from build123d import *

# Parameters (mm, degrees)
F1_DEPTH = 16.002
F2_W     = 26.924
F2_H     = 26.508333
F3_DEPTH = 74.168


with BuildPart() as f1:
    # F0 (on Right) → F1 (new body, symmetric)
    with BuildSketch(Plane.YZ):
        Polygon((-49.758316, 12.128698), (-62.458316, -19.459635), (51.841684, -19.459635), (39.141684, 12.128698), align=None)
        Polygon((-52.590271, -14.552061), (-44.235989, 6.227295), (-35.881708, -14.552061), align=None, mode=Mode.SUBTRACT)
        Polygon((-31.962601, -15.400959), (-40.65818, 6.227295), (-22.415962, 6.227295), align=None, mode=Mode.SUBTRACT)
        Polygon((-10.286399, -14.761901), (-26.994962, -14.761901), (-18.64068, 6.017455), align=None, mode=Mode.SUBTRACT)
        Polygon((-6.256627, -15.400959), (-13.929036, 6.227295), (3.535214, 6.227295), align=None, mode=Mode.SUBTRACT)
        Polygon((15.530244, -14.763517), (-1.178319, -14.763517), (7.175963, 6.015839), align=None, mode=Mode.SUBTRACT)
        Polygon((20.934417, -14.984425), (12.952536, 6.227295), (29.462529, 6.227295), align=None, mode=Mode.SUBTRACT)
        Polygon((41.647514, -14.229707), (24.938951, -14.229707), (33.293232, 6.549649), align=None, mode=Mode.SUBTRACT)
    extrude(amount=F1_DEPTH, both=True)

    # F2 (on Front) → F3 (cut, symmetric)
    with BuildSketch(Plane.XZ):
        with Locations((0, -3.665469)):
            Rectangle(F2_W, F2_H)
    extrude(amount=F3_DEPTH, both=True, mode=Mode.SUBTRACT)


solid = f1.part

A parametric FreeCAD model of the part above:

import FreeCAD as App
import Part
import Sketcher
from FreeCAD import Vector
Q = App.Units.Quantity

doc = App.newDocument("Part")
params = doc.addObject("Spreadsheet::Sheet", "Params")
for row, (alias, value) in enumerate([
    ("sketch1_width", "4.5 in"),
    ("sketch1_width2", "3.5 in"),
    ("pad1_length", "1.26 in"),
    ("sketch2_width", "1.06 in"),
    ("pocket1_length", "5.84 in"),
], start=1):
    params.set(f"A{row}", alias)
    params.set(f"B{row}", "=" + value)
    params.setAlias(f"B{row}", alias)

body = doc.addObject("PartDesign::Body", "Body")

# Sketch on YZ plane
sketch1 = doc.addObject("Sketcher::SketchObject", "Sketch")
body.addObject(sketch1)
sketch1.AttachmentSupport = (doc.YZ_Plane, [""])
sketch1.MapMode = "FlatFace"
sketch1.addGeometry([
    Part.LineSegment(Vector(-49.758316, 12.128698, 0), Vector(-62.458316, -19.459635, 0)),  # 0
    Part.LineSegment(Vector(-62.458316, -19.459635, 0), Vector(51.841684, -19.459635, 0)),  # 1
    Part.LineSegment(Vector(51.841684, -19.459635, 0), Vector(39.141684, 12.128698, 0)),  # 2
    Part.LineSegment(Vector(39.141684, 12.128698, 0), Vector(-49.758316, 12.128698, 0)),  # 3
    Part.LineSegment(Vector(-22.415962, 6.227295, 0), Vector(-31.962601, -15.400959, 0)),  # 4
    Part.LineSegment(Vector(-31.962601, -15.400959, 0), Vector(-40.65818, 6.227295, 0)),  # 5
    Part.LineSegment(Vector(-40.65818, 6.227295, 0), Vector(-22.415962, 6.227295, 0)),  # 6
    Part.LineSegment(Vector(3.535214, 6.227295, 0), Vector(-6.256627, -15.400959, 0)),  # 7
    Part.LineSegment(Vector(-6.256627, -15.400959, 0), Vector(-13.929036, 6.227295, 0)),  # 8
    Part.LineSegment(Vector(-13.929036, 6.227295, 0), Vector(3.535214, 6.227295, 0)),  # 9
    Part.LineSegment(Vector(-35.881708, -14.552061, 0), Vector(-52.590271, -14.552061, 0)),  # 10
    Part.LineSegment(Vector(-52.590271, -14.552061, 0), Vector(-44.235989, 6.227295, 0)),  # 11
    Part.LineSegment(Vector(-44.235989, 6.227295, 0), Vector(-35.881708, -14.552061, 0)),  # 12
    Part.LineSegment(Vector(-18.64068, 6.017455, 0), Vector(-10.286399, -14.761901, 0)),  # 13
    Part.LineSegment(Vector(-10.286399, -14.761901, 0), Vector(-26.994962, -14.761901, 0)),  # 14
    Part.LineSegment(Vector(-26.994962, -14.761901, 0), Vector(-18.64068, 6.017455, 0)),  # 15
    Part.LineSegment(Vector(7.175963, 6.015839, 0), Vector(15.530244, -14.763517, 0)),  # 16
    Part.LineSegment(Vector(15.530244, -14.763517, 0), Vector(-1.178319, -14.763517, 0)),  # 17
    Part.LineSegment(Vector(-1.178319, -14.763517, 0), Vector(7.175963, 6.015839, 0)),  # 18
    Part.LineSegment(Vector(29.462529, 6.227295, 0), Vector(20.934417, -14.984425, 0)),  # 19
    Part.LineSegment(Vector(20.934417, -14.984425, 0), Vector(12.952536, 6.227295, 0)),  # 20
    Part.LineSegment(Vector(12.952536, 6.227295, 0), Vector(29.462529, 6.227295, 0)),  # 21
    Part.LineSegment(Vector(33.293232, 6.549649, 0), Vector(41.647514, -14.229707, 0)),  # 22
    Part.LineSegment(Vector(41.647514, -14.229707, 0), Vector(24.938951, -14.229707, 0)),  # 23
    Part.LineSegment(Vector(24.938951, -14.229707, 0), Vector(33.293232, 6.549649, 0)),  # 24
], False)
sketch1.addConstraint([
    Sketcher.Constraint("Coincident", 0, 2, 1, 1),
    Sketcher.Constraint("Coincident", 1, 2, 2, 1),
    Sketcher.Constraint("Coincident", 2, 2, 3, 1),
    Sketcher.Constraint("Coincident", 3, 2, 0, 1),
    Sketcher.Constraint("Coincident", 4, 2, 5, 1),
    Sketcher.Constraint("Coincident", 5, 2, 6, 1),
    Sketcher.Constraint("Coincident", 6, 2, 4, 1),
    Sketcher.Constraint("Coincident", 7, 2, 8, 1),
    Sketcher.Constraint("Coincident", 8, 2, 9, 1),
    Sketcher.Constraint("Coincident", 9, 2, 7, 1),
    Sketcher.Constraint("Coincident", 10, 2, 11, 1),
    Sketcher.Constraint("Coincident", 11, 2, 12, 1),
    Sketcher.Constraint("Coincident", 12, 2, 10, 1),
    Sketcher.Constraint("Coincident", 13, 2, 14, 1),
    Sketcher.Constraint("Coincident", 14, 2, 15, 1),
    Sketcher.Constraint("Coincident", 15, 2, 13, 1),
    Sketcher.Constraint("Coincident", 16, 2, 17, 1),
    Sketcher.Constraint("Coincident", 17, 2, 18, 1),
    Sketcher.Constraint("Coincident", 18, 2, 16, 1),
    Sketcher.Constraint("Coincident", 19, 2, 20, 1),
    Sketcher.Constraint("Coincident", 20, 2, 21, 1),
    Sketcher.Constraint("Coincident", 21, 2, 19, 1),
    Sketcher.Constraint("Coincident", 22, 2, 23, 1),
    Sketcher.Constraint("Coincident", 23, 2, 24, 1),
    Sketcher.Constraint("Coincident", 24, 2, 22, 1),
    Sketcher.Constraint("Horizontal", 1),
    Sketcher.Constraint("Horizontal", 3),
    Sketcher.Constraint("Horizontal", 6),
    Sketcher.Constraint("Horizontal", 9),
    Sketcher.Constraint("Horizontal", 10),
    Sketcher.Constraint("Horizontal", 14),
    Sketcher.Constraint("Horizontal", 17),
    Sketcher.Constraint("Horizontal", 21),
    Sketcher.Constraint("Horizontal", 23),
    Sketcher.Constraint("DistanceX", 1, 1, 1, 2, Q("4.5 in")),
    Sketcher.Constraint("DistanceX", 3, 2, 3, 1, Q("3.5 in")),
    Sketcher.Constraint("DistanceX", 0, 2, 2, 2, Q("4 in")),
    Sketcher.Constraint("DistanceX", 6, 2, 9, 2, Q("1.0216998 in")),
    Sketcher.Constraint("DistanceX", 6, 1, 6, 2, Q("18.242218 mm")),
    Sketcher.Constraint("DistanceX", 9, 1, 9, 2, Q("17.46425 mm")),
    Sketcher.Constraint("DistanceX", 4, 2, -1, 1, Q("31.962601 mm")),
    Sketcher.Constraint("DistanceX", 13, 2, -1, 1, Q("10.286399 mm")),
    Sketcher.Constraint("DistanceY", 13, 2, -1, 1, Q("14.761901 mm")),
    Sketcher.Constraint("DistanceY", 4, 2, 10, 2, Q("0.848898 mm")),
    Sketcher.Constraint("DistanceX", 14, 2, 6, 2, Q("4.579 mm")),
    Sketcher.Constraint("DistanceX", 5, 2, 15, 2, Q("22.0175 mm")),
    Sketcher.Constraint("DistanceX", 8, 2, 18, 2, Q("21.104999 mm")),
    Sketcher.Constraint("DistanceY", 7, 2, 18, 2, Q("21.416798 mm")),
    Sketcher.Constraint("DistanceY", 22, 2, 21, 2, Q("20.457002 mm")),
    Sketcher.Constraint("DistanceX", 10, 2, 10, 1, Q("16.708563 mm")),
    Sketcher.Constraint("DistanceX", 14, 2, 14, 1, Q("16.708563 mm")),
    Sketcher.Constraint("DistanceX", 17, 2, 17, 1, Q("16.708563 mm")),
    Sketcher.Constraint("DistanceX", 21, 1, 21, 2, Q("16.509993 mm")),
    Sketcher.Constraint("DistanceX", 23, 2, 23, 1, Q("16.708563 mm")),
    Sketcher.Constraint("DistanceY", 4, 2, -1, 1, Q("15.400959 mm")),
    Sketcher.Constraint("DistanceY", 7, 2, -1, 1, Q("15.400959 mm")),
    Sketcher.Constraint("DistanceX", 10, 2, -1, 1, Q("52.590271 mm")),
    Sketcher.Constraint("DistanceX", 11, 2, -1, 1, Q("44.235989 mm")),
    Sketcher.Constraint("DistanceX", 17, 2, -1, 1, Q("1.178319 mm")),
    Sketcher.Constraint("DistanceX", -1, 1, 21, 2, Q("29.462529 mm")),
    Sketcher.Constraint("DistanceX", -1, 1, 23, 2, Q("24.938951 mm")),
    Sketcher.Constraint("DistanceY", -1, 1, 24, 2, Q("6.549649 mm")),
    Sketcher.Constraint("DistanceY", 0, 2, 5, 2, Q("25.68693 mm")),
    Sketcher.Constraint("DistanceX", 3, 2, 7, 2, Q("43.501689 mm")),
    Sketcher.Constraint("DistanceX", 8, 2, 7, 2, Q("7.672409 mm")),
    Sketcher.Constraint("DistanceY", 10, 2, 3, 2, Q("26.680759 mm")),
    Sketcher.Constraint("DistanceY", 15, 2, 6, 2, Q("0.20984 mm")),
    Sketcher.Constraint("DistanceY", 15, 2, 8, 2, Q("0.20984 mm")),
    Sketcher.Constraint("DistanceY", 16, 2, 9, 2, Q("20.990812 mm")),
    Sketcher.Constraint("DistanceY", 19, 2, 9, 2, Q("21.21172 mm")),
    Sketcher.Constraint("DistanceY", 16, 2, 20, 2, Q("20.990812 mm")),
    Sketcher.Constraint("DistanceX", 20, 2, 19, 2, Q("7.981881 mm")),
    Sketcher.Constraint("DistanceX", 24, 2, 2, 2, Q("5.848452 mm")),
    Sketcher.Constraint("Distance", 0, Q("34.045745 mm")),
    Sketcher.Constraint("Distance", 11, Q("22.395885 mm")),
])
sketch1.setExpression("Constraints[34]", "Params.sketch1_width")
sketch1.setExpression("Constraints[35]", "Params.sketch1_width2")
pad1 = doc.addObject("PartDesign::Pad", "Pad")
body.addObject(pad1)
pad1.Profile = sketch1
pad1.setExpression("Length", "Params.pad1_length")
pad1.Midplane = True

# Sketch on XZ plane
sketch2 = doc.addObject("Sketcher::SketchObject", "Sketch001")
body.addObject(sketch2)
sketch2.AttachmentSupport = (doc.XZ_Plane, [""])
sketch2.MapMode = "FlatFace"
sketch2.addGeometry([
    Part.LineSegment(Vector(-13, 10, 0), Vector(-13, -17, 0)),
    Part.LineSegment(Vector(-13, -17, 0), Vector(13, -17, 0)),
    Part.LineSegment(Vector(13, -17, 0), Vector(13, 10, 0)),
    Part.LineSegment(Vector(13, 10, 0), Vector(-13, 10, 0)),
], False)
sketch2.addConstraint([
    Sketcher.Constraint("Coincident", 0, 2, 1, 1),
    Sketcher.Constraint("Coincident", 1, 2, 2, 1),
    Sketcher.Constraint("Coincident", 2, 2, 3, 1),
    Sketcher.Constraint("Coincident", 3, 2, 0, 1),
    Sketcher.Constraint("Vertical", 0),
    Sketcher.Constraint("Horizontal", 1),
    Sketcher.Constraint("Vertical", 2),
    Sketcher.Constraint("Horizontal", 3),
    Sketcher.Constraint("DistanceX", 1, 1, 1, 2, Q("1.06 in")),
    Sketcher.Constraint("DistanceX", 0, 2, -1, 1, Q("0.53 in")),
    Sketcher.Constraint("DistanceY", 0, 2, 0, 1, Q("26.508333 mm")),
    Sketcher.Constraint("DistanceY", 0, 2, -1, 1, Q("16.919635 mm")),
])
sketch2.setExpression("Constraints[8]", "Params.sketch2_width")
pocket1 = doc.addObject("PartDesign::Pocket", "Pocket")
body.addObject(pocket1)
pocket1.Profile = sketch2
pocket1.setExpression("Length", "Params.pocket1_length")
pocket1.Midplane = True

doc.recompute()
